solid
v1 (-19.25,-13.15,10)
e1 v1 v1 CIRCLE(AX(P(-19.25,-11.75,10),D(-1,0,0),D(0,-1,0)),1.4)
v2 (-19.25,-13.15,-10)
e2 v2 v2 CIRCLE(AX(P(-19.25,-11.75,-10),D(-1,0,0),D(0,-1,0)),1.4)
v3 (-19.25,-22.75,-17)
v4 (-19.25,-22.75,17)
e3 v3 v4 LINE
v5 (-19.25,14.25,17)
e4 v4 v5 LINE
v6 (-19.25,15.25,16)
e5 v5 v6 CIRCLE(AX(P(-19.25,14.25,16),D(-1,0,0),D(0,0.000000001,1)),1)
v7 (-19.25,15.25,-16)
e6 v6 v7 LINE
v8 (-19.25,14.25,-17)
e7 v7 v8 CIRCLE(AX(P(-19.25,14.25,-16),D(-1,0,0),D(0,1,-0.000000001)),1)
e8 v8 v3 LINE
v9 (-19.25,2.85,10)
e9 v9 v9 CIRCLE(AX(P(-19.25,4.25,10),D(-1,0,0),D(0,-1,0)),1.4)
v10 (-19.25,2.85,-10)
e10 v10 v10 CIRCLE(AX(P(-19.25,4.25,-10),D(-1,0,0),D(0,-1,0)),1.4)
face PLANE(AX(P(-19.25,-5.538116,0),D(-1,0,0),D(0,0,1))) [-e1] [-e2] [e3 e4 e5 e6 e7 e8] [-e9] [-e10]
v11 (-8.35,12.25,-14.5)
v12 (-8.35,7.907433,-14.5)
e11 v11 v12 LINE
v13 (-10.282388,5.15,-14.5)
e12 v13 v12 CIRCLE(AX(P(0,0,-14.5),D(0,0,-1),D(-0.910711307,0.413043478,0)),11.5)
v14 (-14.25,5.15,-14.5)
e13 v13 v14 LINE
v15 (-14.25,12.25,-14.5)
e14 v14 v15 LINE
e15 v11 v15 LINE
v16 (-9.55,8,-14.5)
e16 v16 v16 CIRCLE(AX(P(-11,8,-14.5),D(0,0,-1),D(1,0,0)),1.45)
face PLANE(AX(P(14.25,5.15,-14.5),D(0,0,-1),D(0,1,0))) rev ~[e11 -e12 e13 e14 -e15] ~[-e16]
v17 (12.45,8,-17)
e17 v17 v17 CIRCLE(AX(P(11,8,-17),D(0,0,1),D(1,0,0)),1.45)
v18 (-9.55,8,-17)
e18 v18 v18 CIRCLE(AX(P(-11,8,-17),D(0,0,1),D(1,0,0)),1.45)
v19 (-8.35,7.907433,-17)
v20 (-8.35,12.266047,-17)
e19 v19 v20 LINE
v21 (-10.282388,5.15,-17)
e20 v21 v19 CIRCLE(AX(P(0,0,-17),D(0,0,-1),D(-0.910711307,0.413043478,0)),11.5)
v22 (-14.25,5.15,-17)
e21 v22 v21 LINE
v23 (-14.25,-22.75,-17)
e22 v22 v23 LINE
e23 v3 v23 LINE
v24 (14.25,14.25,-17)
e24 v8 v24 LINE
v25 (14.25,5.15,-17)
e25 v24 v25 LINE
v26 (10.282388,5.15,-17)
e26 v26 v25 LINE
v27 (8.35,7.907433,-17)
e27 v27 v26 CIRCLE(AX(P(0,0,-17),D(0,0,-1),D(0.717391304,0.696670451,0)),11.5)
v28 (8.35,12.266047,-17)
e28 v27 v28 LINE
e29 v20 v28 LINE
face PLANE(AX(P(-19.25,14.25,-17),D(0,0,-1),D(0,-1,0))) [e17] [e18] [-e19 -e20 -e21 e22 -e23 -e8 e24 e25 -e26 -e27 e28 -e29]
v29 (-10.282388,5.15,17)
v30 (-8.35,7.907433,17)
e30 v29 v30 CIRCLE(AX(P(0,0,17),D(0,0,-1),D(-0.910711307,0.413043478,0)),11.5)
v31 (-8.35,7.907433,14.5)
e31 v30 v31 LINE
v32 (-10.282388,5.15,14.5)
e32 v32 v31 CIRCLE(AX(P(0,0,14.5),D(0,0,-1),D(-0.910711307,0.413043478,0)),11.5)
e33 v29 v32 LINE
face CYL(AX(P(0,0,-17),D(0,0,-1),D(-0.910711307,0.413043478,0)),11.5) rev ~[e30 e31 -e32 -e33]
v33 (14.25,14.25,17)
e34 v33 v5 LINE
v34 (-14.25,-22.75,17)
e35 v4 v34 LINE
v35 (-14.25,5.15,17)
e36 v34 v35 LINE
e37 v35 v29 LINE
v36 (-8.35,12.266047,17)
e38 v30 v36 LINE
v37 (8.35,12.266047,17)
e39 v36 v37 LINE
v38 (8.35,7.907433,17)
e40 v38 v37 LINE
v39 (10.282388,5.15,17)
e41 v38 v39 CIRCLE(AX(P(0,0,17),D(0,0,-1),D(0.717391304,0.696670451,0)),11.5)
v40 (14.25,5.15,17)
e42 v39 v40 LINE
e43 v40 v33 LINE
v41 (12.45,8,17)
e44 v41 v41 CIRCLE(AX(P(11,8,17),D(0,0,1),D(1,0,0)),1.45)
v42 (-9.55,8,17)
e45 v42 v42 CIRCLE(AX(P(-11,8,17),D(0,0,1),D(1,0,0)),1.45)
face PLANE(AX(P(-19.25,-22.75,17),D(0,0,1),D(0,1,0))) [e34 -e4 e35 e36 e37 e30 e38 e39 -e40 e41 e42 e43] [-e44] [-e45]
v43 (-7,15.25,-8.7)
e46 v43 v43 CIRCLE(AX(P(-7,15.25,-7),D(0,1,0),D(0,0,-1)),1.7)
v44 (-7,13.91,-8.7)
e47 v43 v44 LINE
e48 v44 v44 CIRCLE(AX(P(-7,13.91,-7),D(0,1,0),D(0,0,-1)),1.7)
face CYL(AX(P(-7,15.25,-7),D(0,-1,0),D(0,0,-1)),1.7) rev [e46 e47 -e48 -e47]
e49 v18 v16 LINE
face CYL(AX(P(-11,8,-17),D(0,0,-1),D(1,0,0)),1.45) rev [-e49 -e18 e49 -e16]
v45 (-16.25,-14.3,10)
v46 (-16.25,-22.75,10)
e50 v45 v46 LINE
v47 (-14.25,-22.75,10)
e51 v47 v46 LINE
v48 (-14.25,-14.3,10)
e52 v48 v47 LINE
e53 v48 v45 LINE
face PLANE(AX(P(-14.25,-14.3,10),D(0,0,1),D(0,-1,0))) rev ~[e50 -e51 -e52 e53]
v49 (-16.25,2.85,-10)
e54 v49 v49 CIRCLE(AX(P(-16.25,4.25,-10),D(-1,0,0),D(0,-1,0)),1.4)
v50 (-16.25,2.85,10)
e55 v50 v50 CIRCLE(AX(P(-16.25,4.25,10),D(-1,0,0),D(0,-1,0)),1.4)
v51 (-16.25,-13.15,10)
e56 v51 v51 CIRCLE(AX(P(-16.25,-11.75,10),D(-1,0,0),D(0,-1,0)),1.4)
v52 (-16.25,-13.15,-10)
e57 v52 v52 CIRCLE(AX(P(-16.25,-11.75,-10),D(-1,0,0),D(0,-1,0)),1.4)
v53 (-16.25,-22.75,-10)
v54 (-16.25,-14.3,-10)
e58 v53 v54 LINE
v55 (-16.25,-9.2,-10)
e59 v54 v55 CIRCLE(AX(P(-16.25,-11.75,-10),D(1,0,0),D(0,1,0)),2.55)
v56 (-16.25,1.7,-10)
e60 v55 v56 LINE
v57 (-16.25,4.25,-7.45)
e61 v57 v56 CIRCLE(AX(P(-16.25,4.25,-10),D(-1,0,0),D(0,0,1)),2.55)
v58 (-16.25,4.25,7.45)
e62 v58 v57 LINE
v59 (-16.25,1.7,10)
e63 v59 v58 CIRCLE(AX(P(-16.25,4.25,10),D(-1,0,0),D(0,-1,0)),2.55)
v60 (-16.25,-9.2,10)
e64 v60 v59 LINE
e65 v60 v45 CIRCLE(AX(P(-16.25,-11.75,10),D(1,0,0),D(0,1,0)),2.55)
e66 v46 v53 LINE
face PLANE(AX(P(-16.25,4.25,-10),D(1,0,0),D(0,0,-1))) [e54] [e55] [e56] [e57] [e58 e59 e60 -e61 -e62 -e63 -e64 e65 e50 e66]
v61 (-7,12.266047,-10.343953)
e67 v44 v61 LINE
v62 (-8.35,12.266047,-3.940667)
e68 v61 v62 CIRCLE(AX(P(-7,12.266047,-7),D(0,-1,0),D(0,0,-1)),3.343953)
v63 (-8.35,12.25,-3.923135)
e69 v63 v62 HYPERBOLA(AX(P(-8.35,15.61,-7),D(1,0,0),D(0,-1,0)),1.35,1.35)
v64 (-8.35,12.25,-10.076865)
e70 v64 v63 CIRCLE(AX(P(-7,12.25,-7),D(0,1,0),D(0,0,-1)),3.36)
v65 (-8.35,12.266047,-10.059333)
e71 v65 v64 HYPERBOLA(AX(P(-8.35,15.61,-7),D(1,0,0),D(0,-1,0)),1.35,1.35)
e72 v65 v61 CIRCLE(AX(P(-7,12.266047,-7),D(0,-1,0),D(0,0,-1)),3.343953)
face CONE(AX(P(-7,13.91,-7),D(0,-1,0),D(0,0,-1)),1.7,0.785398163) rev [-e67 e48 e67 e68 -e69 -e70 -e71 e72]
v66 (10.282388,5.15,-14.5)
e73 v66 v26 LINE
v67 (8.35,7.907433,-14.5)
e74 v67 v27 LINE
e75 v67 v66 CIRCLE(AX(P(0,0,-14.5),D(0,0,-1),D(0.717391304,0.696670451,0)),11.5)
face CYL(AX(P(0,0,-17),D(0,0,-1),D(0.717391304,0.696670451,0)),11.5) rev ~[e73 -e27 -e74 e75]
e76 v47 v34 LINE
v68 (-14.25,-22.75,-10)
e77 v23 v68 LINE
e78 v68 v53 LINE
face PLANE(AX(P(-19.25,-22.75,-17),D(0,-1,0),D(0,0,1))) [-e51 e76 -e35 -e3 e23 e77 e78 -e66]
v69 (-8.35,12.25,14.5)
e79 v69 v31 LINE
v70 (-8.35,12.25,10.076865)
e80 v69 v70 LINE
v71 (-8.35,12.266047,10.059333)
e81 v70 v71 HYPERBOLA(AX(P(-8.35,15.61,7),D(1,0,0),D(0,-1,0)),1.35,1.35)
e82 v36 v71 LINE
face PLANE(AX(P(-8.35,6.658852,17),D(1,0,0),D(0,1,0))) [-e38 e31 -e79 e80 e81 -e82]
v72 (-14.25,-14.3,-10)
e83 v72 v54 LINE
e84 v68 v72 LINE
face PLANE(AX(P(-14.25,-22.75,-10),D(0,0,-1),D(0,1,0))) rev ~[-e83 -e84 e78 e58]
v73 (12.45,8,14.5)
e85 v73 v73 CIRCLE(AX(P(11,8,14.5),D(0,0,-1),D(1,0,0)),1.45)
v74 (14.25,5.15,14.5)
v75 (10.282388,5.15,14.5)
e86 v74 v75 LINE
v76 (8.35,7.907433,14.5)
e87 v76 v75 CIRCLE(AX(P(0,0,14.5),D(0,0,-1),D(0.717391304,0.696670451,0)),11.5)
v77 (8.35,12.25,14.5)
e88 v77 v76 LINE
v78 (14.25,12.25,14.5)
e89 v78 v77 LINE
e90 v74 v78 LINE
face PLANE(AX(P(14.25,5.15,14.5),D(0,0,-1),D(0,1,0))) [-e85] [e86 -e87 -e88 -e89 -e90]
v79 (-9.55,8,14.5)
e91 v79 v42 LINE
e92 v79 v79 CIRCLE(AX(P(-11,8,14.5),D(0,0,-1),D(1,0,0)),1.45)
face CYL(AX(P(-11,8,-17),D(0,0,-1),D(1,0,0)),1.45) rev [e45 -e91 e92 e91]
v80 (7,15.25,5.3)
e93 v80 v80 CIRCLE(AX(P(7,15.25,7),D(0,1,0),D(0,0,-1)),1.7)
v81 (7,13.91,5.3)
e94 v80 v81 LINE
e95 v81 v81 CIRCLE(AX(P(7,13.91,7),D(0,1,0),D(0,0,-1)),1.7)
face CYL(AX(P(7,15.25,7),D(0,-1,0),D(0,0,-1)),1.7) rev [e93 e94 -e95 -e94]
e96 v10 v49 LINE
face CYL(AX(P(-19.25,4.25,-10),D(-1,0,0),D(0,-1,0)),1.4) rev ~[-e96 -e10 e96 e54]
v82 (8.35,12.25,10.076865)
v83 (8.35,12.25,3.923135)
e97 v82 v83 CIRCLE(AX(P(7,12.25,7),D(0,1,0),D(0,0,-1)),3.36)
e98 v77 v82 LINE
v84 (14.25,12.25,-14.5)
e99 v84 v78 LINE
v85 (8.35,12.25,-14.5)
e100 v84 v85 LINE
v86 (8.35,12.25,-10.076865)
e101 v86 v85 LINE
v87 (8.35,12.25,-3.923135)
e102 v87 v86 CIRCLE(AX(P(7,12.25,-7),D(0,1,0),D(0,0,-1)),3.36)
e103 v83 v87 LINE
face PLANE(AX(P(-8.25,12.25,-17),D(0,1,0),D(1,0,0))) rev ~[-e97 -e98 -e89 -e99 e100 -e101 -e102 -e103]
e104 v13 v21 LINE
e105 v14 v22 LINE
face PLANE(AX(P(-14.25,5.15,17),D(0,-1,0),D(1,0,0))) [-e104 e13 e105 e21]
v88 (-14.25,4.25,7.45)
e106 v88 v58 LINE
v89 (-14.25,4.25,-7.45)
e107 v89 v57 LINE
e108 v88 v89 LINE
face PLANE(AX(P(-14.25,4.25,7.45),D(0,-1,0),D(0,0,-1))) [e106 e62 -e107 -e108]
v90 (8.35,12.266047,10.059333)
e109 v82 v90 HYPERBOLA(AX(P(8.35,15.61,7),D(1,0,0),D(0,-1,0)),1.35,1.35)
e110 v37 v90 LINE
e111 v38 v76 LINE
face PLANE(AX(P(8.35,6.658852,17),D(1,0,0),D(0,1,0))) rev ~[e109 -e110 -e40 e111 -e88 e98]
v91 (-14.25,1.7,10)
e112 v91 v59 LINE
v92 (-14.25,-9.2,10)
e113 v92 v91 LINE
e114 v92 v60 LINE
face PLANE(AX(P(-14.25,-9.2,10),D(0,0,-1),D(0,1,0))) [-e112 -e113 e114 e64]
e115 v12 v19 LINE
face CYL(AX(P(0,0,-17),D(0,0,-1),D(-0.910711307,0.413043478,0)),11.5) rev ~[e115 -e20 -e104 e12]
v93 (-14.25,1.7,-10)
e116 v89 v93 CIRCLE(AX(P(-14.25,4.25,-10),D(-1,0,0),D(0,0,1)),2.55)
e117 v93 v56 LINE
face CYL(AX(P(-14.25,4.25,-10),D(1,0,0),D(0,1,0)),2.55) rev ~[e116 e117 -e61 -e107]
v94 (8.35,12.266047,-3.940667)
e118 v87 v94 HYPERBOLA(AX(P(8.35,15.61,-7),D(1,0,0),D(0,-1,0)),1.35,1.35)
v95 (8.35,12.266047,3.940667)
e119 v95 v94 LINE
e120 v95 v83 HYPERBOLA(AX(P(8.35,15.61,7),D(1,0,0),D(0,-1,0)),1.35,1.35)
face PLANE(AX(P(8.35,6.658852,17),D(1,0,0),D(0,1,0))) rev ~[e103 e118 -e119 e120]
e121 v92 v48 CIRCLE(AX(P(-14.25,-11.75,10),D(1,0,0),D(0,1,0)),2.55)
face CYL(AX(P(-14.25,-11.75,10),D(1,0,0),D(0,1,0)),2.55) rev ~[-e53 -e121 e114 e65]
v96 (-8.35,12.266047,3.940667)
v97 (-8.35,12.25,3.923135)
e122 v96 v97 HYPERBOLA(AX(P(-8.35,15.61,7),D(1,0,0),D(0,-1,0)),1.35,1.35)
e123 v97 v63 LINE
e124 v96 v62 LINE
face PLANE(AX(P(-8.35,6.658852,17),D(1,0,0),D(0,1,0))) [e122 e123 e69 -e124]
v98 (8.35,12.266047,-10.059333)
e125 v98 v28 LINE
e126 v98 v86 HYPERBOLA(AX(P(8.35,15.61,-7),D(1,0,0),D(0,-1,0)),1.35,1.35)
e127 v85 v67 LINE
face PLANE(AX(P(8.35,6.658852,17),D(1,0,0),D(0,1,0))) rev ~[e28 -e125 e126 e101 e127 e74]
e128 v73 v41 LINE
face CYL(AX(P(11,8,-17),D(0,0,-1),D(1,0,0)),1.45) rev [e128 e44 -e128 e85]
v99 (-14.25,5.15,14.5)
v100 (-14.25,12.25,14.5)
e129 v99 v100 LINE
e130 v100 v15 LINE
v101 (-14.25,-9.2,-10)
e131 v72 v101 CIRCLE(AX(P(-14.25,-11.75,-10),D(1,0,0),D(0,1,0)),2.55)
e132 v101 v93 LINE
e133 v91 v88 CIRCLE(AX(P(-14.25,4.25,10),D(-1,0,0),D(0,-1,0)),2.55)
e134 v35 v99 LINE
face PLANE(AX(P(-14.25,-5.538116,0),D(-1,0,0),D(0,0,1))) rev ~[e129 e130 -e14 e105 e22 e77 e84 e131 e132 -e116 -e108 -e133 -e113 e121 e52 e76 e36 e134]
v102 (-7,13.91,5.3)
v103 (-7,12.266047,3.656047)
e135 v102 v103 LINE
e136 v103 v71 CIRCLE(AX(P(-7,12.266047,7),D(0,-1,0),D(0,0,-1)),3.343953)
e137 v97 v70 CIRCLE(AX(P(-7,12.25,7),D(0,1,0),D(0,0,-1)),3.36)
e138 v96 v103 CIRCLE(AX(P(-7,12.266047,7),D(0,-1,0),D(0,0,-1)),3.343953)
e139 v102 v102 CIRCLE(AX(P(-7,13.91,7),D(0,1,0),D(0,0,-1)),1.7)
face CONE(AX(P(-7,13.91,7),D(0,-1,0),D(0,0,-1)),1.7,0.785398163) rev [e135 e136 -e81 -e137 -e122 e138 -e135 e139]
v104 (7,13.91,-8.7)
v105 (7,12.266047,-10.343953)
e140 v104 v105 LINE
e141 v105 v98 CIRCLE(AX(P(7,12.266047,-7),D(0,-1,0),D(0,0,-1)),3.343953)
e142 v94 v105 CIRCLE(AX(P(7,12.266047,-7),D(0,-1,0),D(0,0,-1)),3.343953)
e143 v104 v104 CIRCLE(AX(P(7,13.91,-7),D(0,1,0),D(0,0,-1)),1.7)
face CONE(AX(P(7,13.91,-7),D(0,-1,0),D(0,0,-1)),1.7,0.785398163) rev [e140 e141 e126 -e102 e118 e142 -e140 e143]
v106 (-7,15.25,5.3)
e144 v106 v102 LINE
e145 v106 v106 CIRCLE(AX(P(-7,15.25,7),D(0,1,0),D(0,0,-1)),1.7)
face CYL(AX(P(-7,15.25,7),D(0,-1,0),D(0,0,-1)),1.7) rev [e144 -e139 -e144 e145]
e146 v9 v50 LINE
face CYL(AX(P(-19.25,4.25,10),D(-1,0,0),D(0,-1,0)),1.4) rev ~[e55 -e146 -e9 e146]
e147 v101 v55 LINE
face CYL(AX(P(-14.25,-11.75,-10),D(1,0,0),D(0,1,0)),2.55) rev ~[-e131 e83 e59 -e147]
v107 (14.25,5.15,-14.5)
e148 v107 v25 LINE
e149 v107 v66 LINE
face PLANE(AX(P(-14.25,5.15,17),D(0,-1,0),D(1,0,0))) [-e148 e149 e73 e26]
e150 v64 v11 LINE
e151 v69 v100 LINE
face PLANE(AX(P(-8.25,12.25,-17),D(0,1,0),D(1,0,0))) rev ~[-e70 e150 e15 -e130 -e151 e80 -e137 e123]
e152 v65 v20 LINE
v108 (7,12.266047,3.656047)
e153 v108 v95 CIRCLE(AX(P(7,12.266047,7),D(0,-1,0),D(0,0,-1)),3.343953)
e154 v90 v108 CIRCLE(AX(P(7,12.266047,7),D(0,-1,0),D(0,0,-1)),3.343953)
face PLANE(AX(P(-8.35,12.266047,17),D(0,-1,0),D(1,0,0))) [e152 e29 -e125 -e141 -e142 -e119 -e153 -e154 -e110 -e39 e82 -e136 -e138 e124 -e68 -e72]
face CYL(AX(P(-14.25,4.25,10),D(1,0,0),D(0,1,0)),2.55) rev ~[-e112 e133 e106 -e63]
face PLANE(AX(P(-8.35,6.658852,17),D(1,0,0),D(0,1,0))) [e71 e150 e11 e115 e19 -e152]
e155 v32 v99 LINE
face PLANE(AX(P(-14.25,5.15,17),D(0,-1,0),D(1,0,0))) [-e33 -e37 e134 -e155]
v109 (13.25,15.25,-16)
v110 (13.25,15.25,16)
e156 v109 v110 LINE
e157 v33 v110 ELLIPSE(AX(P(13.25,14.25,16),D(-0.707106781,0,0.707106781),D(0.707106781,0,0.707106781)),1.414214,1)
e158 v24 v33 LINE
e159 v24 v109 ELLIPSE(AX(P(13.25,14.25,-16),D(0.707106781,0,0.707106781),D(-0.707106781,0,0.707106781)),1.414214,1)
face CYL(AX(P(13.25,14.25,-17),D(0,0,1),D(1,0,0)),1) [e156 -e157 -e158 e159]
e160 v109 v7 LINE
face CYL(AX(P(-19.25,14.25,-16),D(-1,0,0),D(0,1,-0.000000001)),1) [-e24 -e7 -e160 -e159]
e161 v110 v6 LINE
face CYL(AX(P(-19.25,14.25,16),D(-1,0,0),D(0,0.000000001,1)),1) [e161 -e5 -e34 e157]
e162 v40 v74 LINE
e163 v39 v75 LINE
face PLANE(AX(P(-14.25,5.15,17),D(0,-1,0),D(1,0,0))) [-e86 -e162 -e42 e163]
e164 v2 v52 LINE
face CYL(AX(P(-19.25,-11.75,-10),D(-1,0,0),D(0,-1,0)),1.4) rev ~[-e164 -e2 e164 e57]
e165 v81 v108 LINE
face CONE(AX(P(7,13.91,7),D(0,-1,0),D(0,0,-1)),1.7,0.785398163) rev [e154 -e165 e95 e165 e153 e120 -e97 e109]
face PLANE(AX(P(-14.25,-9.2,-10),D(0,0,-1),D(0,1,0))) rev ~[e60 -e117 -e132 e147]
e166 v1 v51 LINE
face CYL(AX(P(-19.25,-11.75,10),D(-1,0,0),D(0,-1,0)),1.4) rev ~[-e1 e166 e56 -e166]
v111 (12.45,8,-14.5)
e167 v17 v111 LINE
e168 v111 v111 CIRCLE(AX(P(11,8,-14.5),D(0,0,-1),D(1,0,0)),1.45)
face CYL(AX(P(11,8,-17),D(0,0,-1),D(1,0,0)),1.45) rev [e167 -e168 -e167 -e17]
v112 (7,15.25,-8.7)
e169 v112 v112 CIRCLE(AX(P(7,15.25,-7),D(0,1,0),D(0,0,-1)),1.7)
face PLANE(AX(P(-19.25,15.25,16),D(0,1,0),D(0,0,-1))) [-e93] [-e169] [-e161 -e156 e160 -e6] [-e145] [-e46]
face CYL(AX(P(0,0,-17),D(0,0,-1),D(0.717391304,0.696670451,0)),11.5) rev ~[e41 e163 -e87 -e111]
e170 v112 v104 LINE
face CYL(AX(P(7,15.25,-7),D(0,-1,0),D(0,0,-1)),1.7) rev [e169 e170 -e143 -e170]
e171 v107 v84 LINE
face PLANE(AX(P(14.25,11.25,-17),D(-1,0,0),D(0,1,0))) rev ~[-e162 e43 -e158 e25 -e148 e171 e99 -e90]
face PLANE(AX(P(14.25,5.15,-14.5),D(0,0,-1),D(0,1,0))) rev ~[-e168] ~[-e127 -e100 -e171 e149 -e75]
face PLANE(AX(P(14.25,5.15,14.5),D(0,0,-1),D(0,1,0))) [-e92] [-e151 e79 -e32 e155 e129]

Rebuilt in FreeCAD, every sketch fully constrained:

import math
import FreeCAD as App
import Part
import Sketcher

V = App.Vector
Q = App.Units.Quantity


def edges_at(feature, points):
    """Names of the edges that pass closest to the given points."""
    edges = feature.Shape.Edges
    near = lambda p: min(range(len(edges)), key=lambda i: edges[i].distToShape(Part.Vertex(*p))[0])
    return sorted({f"Edge{near(p) + 1}" for p in points})


def add_polygon(sketch, points):
    """Adds a closed chain of lines whose ends are joined by coincident constraints."""
    first, n = sketch.GeometryCount, len(points)
    for a, b in zip(points, points[1:] + points[:1]):
        sketch.addGeometry(Part.LineSegment(App.Vector(*a, 0), App.Vector(*b, 0)), False)
    for i in range(n):
        sketch.addConstraint(Sketcher.Constraint("Coincident", first + i, 2, first + (i + 1) % n, 1))

doc = App.newDocument("Part")
body = doc.addObject("PartDesign::Body", "Body")

sketch1 = doc.addObject("Sketcher::SketchObject", "Sketch")
body.addObject(sketch1)
sketch1.AttachmentSupport = (doc.XY_Plane, [""])
sketch1.MapMode = "FlatFace"
sketch1.addGeometry([
    Part.LineSegment(V(-14.2, 15.2, 0), V(-14.2, 4.8, 0)),
    Part.LineSegment(V(-14.2, 4.8, 0), V(-10.5, 4.8, 0)),
    Part.ArcOfCircle(Part.Circle(V(0, 0, 0), V(0, 0, 1), 11.5), math.radians(135.84), math.radians(155.6)),
    Part.LineSegment(V(-8.2, 8, 0), V(-8.2, 12.2, 0)),
    Part.LineSegment(V(-8.2, 12.2, 0), V(8.2, 12.2, 0)),
    Part.LineSegment(V(8.2, 12.2, 0), V(8.2, 8, 0)),
    Part.ArcOfCircle(Part.Circle(V(0, 0, 0), V(0, 0, 1), 11.5), math.radians(24.4), math.radians(44.16)),
    Part.LineSegment(V(10.5, 4.8, 0), V(14.2, 4.8, 0)),
    Part.LineSegment(V(14.2, 4.8, 0), V(14.2, 15.2, 0)),
    Part.LineSegment(V(14.2, 15.2, 0), V(-14.2, 15.2, 0)),
    Part.Circle(V(-11, 8, 0), V(0, 0, 1), 1.4),
    Part.Circle(V(11, 8, 0), V(0, 0, 1), 1.4),
], False)
sketch1.addConstraint([
    Sketcher.Constraint("Coincident", 0, 2, 1, 1),
    Sketcher.Constraint("Coincident", 1, 2, 2, 2),
    Sketcher.Constraint("Coincident", 2, 1, 3, 1),
    Sketcher.Constraint("Coincident", 3, 2, 4, 1),
    Sketcher.Constraint("Coincident", 4, 2, 5, 1),
    Sketcher.Constraint("Coincident", 5, 2, 6, 2),
    Sketcher.Constraint("Coincident", 6, 1, 7, 1),
    Sketcher.Constraint("Coincident", 7, 2, 8, 1),
    Sketcher.Constraint("Coincident", 8, 2, 9, 1),
    Sketcher.Constraint("Coincident", 9, 2, 0, 1),
    Sketcher.Constraint("Vertical", 0),
    Sketcher.Constraint("Horizontal", 1),
    Sketcher.Constraint("Vertical", 3),
    Sketcher.Constraint("Horizontal", 4),
    Sketcher.Constraint("Vertical", 5),
    Sketcher.Constraint("Horizontal", 7),
    Sketcher.Constraint("Vertical", 8),
    Sketcher.Constraint("Horizontal", 9),
    Sketcher.Constraint("Coincident", 2, 3, -1, 1),
    Sketcher.Constraint("Coincident", 6, 3, -1, 1),
    Sketcher.Constraint("Equal", 2, 6),
    Sketcher.Constraint("Equal", 10, 11),
    Sketcher.Constraint("Symmetric", 10, 3, 11, 3, -2),
    Sketcher.Constraint("Symmetric", 0, 2, 7, 2, -2),
    Sketcher.Constraint("Horizontal", 2, 1, 5, 2),
    Sketcher.Constraint("Diameter", 10, Q("2.9 mm")),
    Sketcher.Constraint("Radius", 2, Q("11.5 mm")),
    Sketcher.Constraint("DistanceX", 4, 1, 4, 2, Q("16.5 mm")),
    Sketcher.Constraint("DistanceX", 9, 2, 9, 1, Q("28.5 mm")),
    Sketcher.Constraint("DistanceY", 0, 2, 0, 1, Q("10.5 mm")),
    Sketcher.Constraint("DistanceX", 10, 3, -1, 1, Q("11 mm")),
    Sketcher.Constraint("DistanceY", -1, 1, 10, 3, Q("8 mm")),
    Sketcher.Constraint("DistanceY", 4, 2, 8, 2, Q("3 mm")),
    Sketcher.Constraint("DistanceY", -1, 1, 0, 2, Q("4.75 mm")),
])
pad1 = doc.addObject("PartDesign::Pad", "Pad")
body.addObject(pad1)
pad1.Profile = sketch1
pad1.Type = "TwoLengths"
pad1.Length = 17
pad1.Length2 = 17

sketch2 = doc.addObject("Sketcher::SketchObject", "Sketch001")
body.addObject(sketch2)
sketch2.AttachmentSupport = (doc.YZ_Plane, [""])
sketch2.MapMode = "FlatFace"
sketch2.AttachmentOffset = App.Placement(V(0, 0, -14.25), App.Rotation())
add_polygon(sketch2, [(12, -14), (5, -14), (5, 14), (12, 14)])
sketch2.addConstraint([
    Sketcher.Constraint("Horizontal", 0),
    Sketcher.Constraint("Vertical", 1),
    Sketcher.Constraint("Horizontal", 2),
    Sketcher.Constraint("Vertical", 3),
    Sketcher.Constraint("DistanceX", 0, 2, 0, 1, Q("7.5 mm")),
    Sketcher.Constraint("DistanceY", 1, 1, 1, 2, Q("28.4 mm")),
    Sketcher.Constraint("DistanceY", 0, 2, -1, 1, Q("14.2 mm")),
    Sketcher.Constraint("DistanceX", -1, 1, 0, 2, Q("4.75 mm")),
])
pocket1 = doc.addObject("PartDesign::Pocket", "Pocket")
body.addObject(pocket1)
pocket1.Profile = sketch2
pocket1.Type = "ThroughAll"
pocket1.Reversed = True

sketch3 = doc.addObject("Sketcher::SketchObject", "Sketch002")
body.addObject(sketch3)
sketch3.AttachmentSupport = (doc.XZ_Plane, [""])
sketch3.MapMode = "FlatFace"
sketch3.AttachmentOffset = App.Placement(V(0, 0, -15.25), App.Rotation())
sketch3.addGeometry(Part.Circle(V(0, 0, 0), V(0, 0, 1), 5), False)
sketch3.addConstraint([
    Sketcher.Constraint("Coincident", 0, 3, -1, 1),
    Sketcher.Constraint("Diameter", 0, Q("10 mm")),
])
pocket2 = doc.addObject("PartDesign::Pocket", "Pocket001")
body.addObject(pocket2)
pocket2.Profile = sketch3
pocket2.Type = "ThroughAll"
pocket2.Reversed = True

sketch4 = doc.addObject("Sketcher::SketchObject", "Sketch003")
body.addObject(sketch4)
sketch4.AttachmentSupport = (doc.YZ_Plane, [""])
sketch4.MapMode = "FlatFace"
sketch4.AttachmentOffset = App.Placement(V(0, 0, -8.25), App.Rotation())
add_polygon(sketch4, [(15.2, 9), (12.2, 9), (12.2, 5.6), (13.9, 7.3), (15.2, 7.3)])
sketch4.addGeometry(Part.LineSegment(V(12.2, 9, 0), V(15.2, 9, 0)), True)
sketch4.addConstraint([
    Sketcher.Constraint("Horizontal", 0),
    Sketcher.Constraint("Vertical", 1),
    Sketcher.Constraint("Horizontal", 3),
    Sketcher.Constraint("Vertical", 4),
    Sketcher.Constraint("Horizontal", 5),
    Sketcher.Constraint("Coincident", 5, 1, 0, 2),
    Sketcher.Constraint("Vertical", 3, 2, 5, 2),
    Sketcher.Constraint("DistanceX", 0, 2, 0, 1, Q("3 mm")),
    Sketcher.Constraint("Angle", 2, Q("45 deg")),
    Sketcher.Constraint("DistanceY", 4, 1, 4, 2, Q("1.7 mm")),
    Sketcher.Constraint("DistanceY", -1, 1, 0, 2, Q("9 mm")),
    Sketcher.Constraint("DistanceX", 3, 1, 3, 2, Q("1.34 mm")),
    Sketcher.Constraint("DistanceX", -1, 1, 0, 2, Q("12.25 mm")),
])
groove = doc.addObject("PartDesign::Groove", "Groove")
body.addObject(groove)
groove.Profile = sketch4
groove.ReferenceAxis = (sketch4, ["Axis0"])
groove.Angle = 360
doc.recompute()

linearpattern = doc.addObject("PartDesign::LinearPattern", "LinearPattern")
body.addObject(linearpattern)
linearpattern.Originals = [groove]
linearpattern.Direction = (doc.X_Axis, [""])
linearpattern.Mode = "offset"
linearpattern.Offset = 16.5
linearpattern.Occurrences = 2
body.Tip = linearpattern
doc.recompute()

linearpattern2 = doc.addObject("PartDesign::LinearPattern", "LinearPattern001")
body.addObject(linearpattern2)
linearpattern2.Originals = [groove]
linearpattern2.Direction = (doc.Z_Axis, [""])
linearpattern2.Mode = "offset"
linearpattern2.Offset = 18
linearpattern2.Occurrences = 2
linearpattern2.Reversed = True
body.Tip = linearpattern2
doc.recompute()

datumline = doc.addObject("PartDesign::Line", "DatumLine")
body.addObject(datumline)
datumline.Placement = App.Placement(V(0, 0, 0), App.Rotation(V(0, 0, 1), V(0.675724629, 0, -0.73715414)))
linearpattern3 = doc.addObject("PartDesign::LinearPattern", "LinearPattern002")
body.addObject(linearpattern3)
linearpattern3.Originals = [groove]
linearpattern3.Direction = (datumline, [""])
linearpattern3.Mode = "offset"
linearpattern3.Offset = 24.418231
linearpattern3.Occurrences = 2
body.Tip = linearpattern3
doc.recompute()

fillet = doc.addObject("PartDesign::Fillet", "Fillet")
body.addObject(fillet)
fillet.Base = (linearpattern3, edges_at(linearpattern3, [(14.25, 15.25, 0), (0, 15.25, -17), (0, 15.25, 17)]))
fillet.Radius = 1

sketch5 = doc.addObject("Sketcher::SketchObject", "Sketch004")
body.addObject(sketch5)
sketch5.AttachmentSupport = (doc.XY_Plane, [""])
sketch5.MapMode = "FlatFace"
sketch5.AttachmentOffset = App.Placement(V(0, 0, 17), App.Rotation())
add_polygon(sketch5, [(-14.25, 5.15), (-14.25, 4.75), (14.25, 4.75), (14.25, 5.15)])
sketch5.addConstraint([
    Sketcher.Constraint("Vertical", 0),
    Sketcher.Constraint("Horizontal", 1),
    Sketcher.Constraint("Vertical", 2),
    Sketcher.Constraint("Horizontal", 3),
    Sketcher.Constraint("DistanceX", 1, 1, 1, 2, Q("28.5 mm")),
    Sketcher.Constraint("DistanceY", 0, 2, 0, 1, Q("0.4 mm")),
    Sketcher.Constraint("DistanceX", 0, 2, -1, 1, Q("14.25 mm")),
    Sketcher.Constraint("DistanceY", -1, 1, 0, 2, Q("4.75 mm")),
])
pocket3 = doc.addObject("PartDesign::Pocket", "Pocket002")
body.addObject(pocket3)
pocket3.Profile = sketch5
pocket3.Type = "ThroughAll"

sketch6 = doc.addObject("Sketcher::SketchObject", "Sketch005")
body.addObject(sketch6)
sketch6.AttachmentSupport = (doc.YZ_Plane, [""])
sketch6.MapMode = "FlatFace"
sketch6.AttachmentOffset = App.Placement(V(0, 0, -19.25), App.Rotation())
sketch6.addGeometry([
    Part.LineSegment(V(-22.8, 17, 0), V(14.2, 17, 0)),
    Part.ArcOfCircle(Part.Circle(V(14.2, 16, 0), V(0, 0, 1), 1), math.radians(0), math.radians(90)),
    Part.LineSegment(V(15.2, 16, 0), V(15.2, -16, 0)),
    Part.ArcOfCircle(Part.Circle(V(14.2, -16, 0), V(0, 0, 1), 1), math.radians(-90), math.radians(0)),
    Part.LineSegment(V(14.2, -17, 0), V(-22.8, -17, 0)),
    Part.LineSegment(V(-22.8, -17, 0), V(-22.8, 17, 0)),
], False)
sketch6.addConstraint([
    Sketcher.Constraint("Tangent", 0, 2, 1, 2),
    Sketcher.Constraint("Tangent", 1, 1, 2, 1),
    Sketcher.Constraint("Tangent", 2, 2, 3, 2),
    Sketcher.Constraint("Tangent", 3, 1, 4, 1),
    Sketcher.Constraint("Coincident", 4, 2, 5, 1),
    Sketcher.Constraint("Coincident", 5, 2, 0, 1),
    Sketcher.Constraint("Horizontal", 0),
    Sketcher.Constraint("Vertical", 2),
    Sketcher.Constraint("Horizontal", 4),
    Sketcher.Constraint("Vertical", 5),
    Sketcher.Constraint("Equal", 1, 3),
    Sketcher.Constraint("Radius", 1, Q("1 mm")),
    Sketcher.Constraint("DistanceX", 0, 1, 0, 2, Q("37 mm")),
    Sketcher.Constraint("DistanceY", 2, 2, 2, 1, Q("32 mm")),
    Sketcher.Constraint("DistanceY", -1, 1, 1, 3, Q("16 mm")),
    Sketcher.Constraint("DistanceX", -1, 1, 1, 3, Q("14.25 mm")),
])
pad2 = doc.addObject("PartDesign::Pad", "Pad001")
body.addObject(pad2)
pad2.Profile = sketch6
pad2.Length = 5

sketch7 = doc.addObject("Sketcher::SketchObject", "Sketch006")
body.addObject(sketch7)
sketch7.AttachmentSupport = (doc.YZ_Plane, [""])
sketch7.MapMode = "FlatFace"
sketch7.AttachmentOffset = App.Placement(V(0, 0, -19.25), App.Rotation())
sketch7.addGeometry([
    Part.Circle(V(-11.8, -10, 0), V(0, 0, 1), 1.4),
    Part.Circle(V(-11.8, 10, 0), V(0, 0, 1), 1.4),
    Part.Circle(V(4.2, 10, 0), V(0, 0, 1), 1.4),
    Part.Circle(V(4.2, -10, 0), V(0, 0, 1), 1.4),
], False)
sketch7.addConstraint([
    Sketcher.Constraint("Equal", 0, 1),
    Sketcher.Constraint("Equal", 1, 2),
    Sketcher.Constraint("Equal", 2, 3),
    Sketcher.Constraint("Symmetric", 0, 3, 1, 3, -1),
    Sketcher.Constraint("Symmetric", 2, 3, 3, 3, -1),
    Sketcher.Constraint("Horizontal", 1, 3, 2, 3),
    Sketcher.Constraint("Diameter", 0, Q("2.8 mm")),
    Sketcher.Constraint("DistanceY", 0, 3, -1, 1, Q("10 mm")),
    Sketcher.Constraint("DistanceX", 1, 3, 2, 3, Q("16 mm")),
    Sketcher.Constraint("DistanceX", 0, 3, -1, 1, Q("11.75 mm")),
])
pocket4 = doc.addObject("PartDesign::Pocket", "Pocket003")
body.addObject(pocket4)
pocket4.Profile = sketch7
pocket4.Length = 5
pocket4.Reversed = True

sketch8 = doc.addObject("Sketcher::SketchObject", "Sketch007")
body.addObject(sketch8)
sketch8.AttachmentSupport = (doc.YZ_Plane, [""])
sketch8.MapMode = "FlatFace"
sketch8.AttachmentOffset = App.Placement(V(0, 0, -14.25), App.Rotation())
sketch8.addGeometry([
    Part.Circle(V(-11.8, 10, 0), V(0, 0, 1), 2.5),
    Part.Circle(V(-11.8, -10, 0), V(0, 0, 1), 2.5),
    Part.Circle(V(4.2, -10, 0), V(0, 0, 1), 2.5),
    Part.Circle(V(4.2, 10, 0), V(0, 0, 1), 2.5),
], False)
sketch8.addConstraint([
    Sketcher.Constraint("Equal", 0, 1),
    Sketcher.Constraint("Equal", 1, 2),
    Sketcher.Constraint("Equal", 2, 3),
    Sketcher.Constraint("Symmetric", 0, 3, 1, 3, -1),
    Sketcher.Constraint("Symmetric", 2, 3, 3, 3, -1),
    Sketcher.Constraint("Horizontal", 1, 3, 2, 3),
    Sketcher.Constraint("Diameter", 0, Q("5.1 mm")),
    Sketcher.Constraint("DistanceY", -1, 1, 0, 3, Q("10 mm")),
    Sketcher.Constraint("DistanceX", 1, 3, 2, 3, Q("16 mm")),
    Sketcher.Constraint("DistanceX", 0, 3, -1, 1, Q("11.75 mm")),
])
pocket5 = doc.addObject("PartDesign::Pocket", "Pocket004")
body.addObject(pocket5)
pocket5.Profile = sketch8
pocket5.Length = 2

sketch9 = doc.addObject("Sketcher::SketchObject", "Sketch008")
body.addObject(sketch9)
sketch9.AttachmentSupport = (doc.XZ_Plane, [""])
sketch9.MapMode = "FlatFace"
sketch9.AttachmentOffset = App.Placement(V(0, 0, -15.25), App.Rotation())
add_polygon(sketch9, [(-12, -15), (-12, 15), (12, 15), (12, -15)])
sketch9.addConstraint([
    Sketcher.Constraint("Vertical", 0),
    Sketcher.Constraint("Horizontal", 1),
    Sketcher.Constraint("Vertical", 2),
    Sketcher.Constraint("Horizontal", 3),
    Sketcher.Constraint("Symmetric", 0, 2, 2, 2, -1, 1),
    Sketcher.Constraint("DistanceX", 1, 1, 1, 2, Q("24.851878 mm")),
    Sketcher.Constraint("DistanceY", 0, 1, 0, 2, Q("29.949434 mm")),
])
pad3 = doc.addObject("PartDesign::Pad", "Pad002")
body.addObject(pad3)
pad3.Profile = sketch9
pad3.Length = 3

sketch10 = doc.addObject("Sketcher::SketchObject", "Sketch009")
body.addObject(sketch10)
sketch10.AttachmentSupport = (doc.YZ_Plane, [""])
sketch10.MapMode = "FlatFace"
sketch10.AttachmentOffset = App.Placement(V(0, 0, -7), App.Rotation())
add_polygon(sketch10, [(15.2, 7), (12.2, 7), (12.2, 3.6), (13.9, 5.3), (15.2, 5.3)])
sketch10.addGeometry(Part.LineSegment(V(12.2, 7, 0), V(15.2, 7, 0)), True)
sketch10.addConstraint([
    Sketcher.Constraint("Horizontal", 0),
    Sketcher.Constraint("Vertical", 1),
    Sketcher.Constraint("Horizontal", 3),
    Sketcher.Constraint("Vertical", 4),
    Sketcher.Constraint("Horizontal", 5),
    Sketcher.Constraint("Coincident", 5, 1, 0, 2),
    Sketcher.Constraint("Vertical", 3, 2, 5, 2),
    Sketcher.Constraint("DistanceX", 0, 2, 0, 1, Q("3 mm")),
    Sketcher.Constraint("Angle", 2, Q("45 deg")),
    Sketcher.Constraint("DistanceY", 4, 1, 4, 2, Q("1.7 mm")),
    Sketcher.Constraint("DistanceY", -1, 1, 0, 2, Q("7 mm")),
    Sketcher.Constraint("DistanceX", 3, 1, 3, 2, Q("1.34 mm")),
    Sketcher.Constraint("DistanceX", -1, 1, 0, 2, Q("12.25 mm")),
])
groove2 = doc.addObject("PartDesign::Groove", "Groove001")
body.addObject(groove2)
groove2.Profile = sketch10
groove2.ReferenceAxis = (sketch10, ["Axis0"])
groove2.Angle = 360
doc.recompute()

linearpattern4 = doc.addObject("PartDesign::LinearPattern", "LinearPattern003")
body.addObject(linearpattern4)
linearpattern4.Originals = [groove2]
linearpattern4.Direction = (doc.Z_Axis, [""])
linearpattern4.Mode = "offset"
linearpattern4.Offset = 14
linearpattern4.Occurrences = 2
linearpattern4.Reversed = True
body.Tip = linearpattern4
doc.recompute()

datumline2 = doc.addObject("PartDesign::Line", "DatumLine001")
body.addObject(datumline2)
datumline2.Placement = App.Placement(V(0, 0, 0), App.Rotation(V(0, 0, 1), V(0.707106781, 0, -0.707106781)))
linearpattern5 = doc.addObject("PartDesign::LinearPattern", "LinearPattern004")
body.addObject(linearpattern5)
linearpattern5.Originals = [groove2]
linearpattern5.Direction = (datumline2, [""])
linearpattern5.Mode = "offset"
linearpattern5.Offset = 19.79899
linearpattern5.Occurrences = 2
body.Tip = linearpattern5
doc.recompute()

linearpattern6 = doc.addObject("PartDesign::LinearPattern", "LinearPattern005")
body.addObject(linearpattern6)
linearpattern6.Originals = [groove2]
linearpattern6.Direction = (doc.X_Axis, [""])
linearpattern6.Mode = "offset"
linearpattern6.Offset = 14
linearpattern6.Occurrences = 2
body.Tip = linearpattern6

sketch11 = doc.addObject("Sketcher::SketchObject", "Sketch010")
body.addObject(sketch11)
sketch11.AttachmentSupport = (doc.YZ_Plane, [""])
sketch11.MapMode = "FlatFace"
sketch11.AttachmentOffset = App.Placement(V(0, 0, -14.25), App.Rotation())
sketch11.addGeometry([
    Part.LineSegment(V(1.7, 10, 0), V(-9.2, 10, 0)),
    Part.ArcOfCircle(Part.Circle(V(-11.8, 10, 0), V(0, 0, 1), 2.5), math.radians(0), math.radians(180)),
    Part.LineSegment(V(-14.3, 10, 0), V(-22.8, 10, 0)),
    Part.LineSegment(V(-22.8, 10, 0), V(-22.8, -10, 0)),
    Part.LineSegment(V(-22.8, -10, 0), V(-14.3, -10, 0)),
    Part.ArcOfCircle(Part.Circle(V(-11.8, -10, 0), V(0, 0, 1), 2.5), math.radians(180), math.radians(360)),
    Part.LineSegment(V(-9.2, -10, 0), V(1.7, -10, 0)),
    Part.ArcOfCircle(Part.Circle(V(4.2, -10, 0), V(0, 0, 1), 2.5), math.radians(180), math.radians(450)),
    Part.LineSegment(V(4.2, -7.5, 0), V(4.2, 7.5, 0)),
    Part.ArcOfCircle(Part.Circle(V(4.2, 10, 0), V(0, 0, 1), 2.5), math.radians(-90), math.radians(180)),
], False)
sketch11.addConstraint([
    Sketcher.Constraint("Coincident", 0, 2, 1, 1),
    Sketcher.Constraint("Coincident", 1, 2, 2, 1),
    Sketcher.Constraint("Coincident", 2, 2, 3, 1),
    Sketcher.Constraint("Coincident", 3, 2, 4, 1),
    Sketcher.Constraint("Coincident", 4, 2, 5, 1),
    Sketcher.Constraint("Coincident", 5, 2, 6, 1),
    Sketcher.Constraint("Coincident", 6, 2, 7, 1),
    Sketcher.Constraint("Coincident", 7, 2, 8, 1),
    Sketcher.Constraint("Coincident", 8, 2, 9, 1),
    Sketcher.Constraint("Coincident", 9, 2, 0, 1),
    Sketcher.Constraint("Horizontal", 0),
    Sketcher.Constraint("Horizontal", 2),
    Sketcher.Constraint("Vertical", 3),
    Sketcher.Constraint("Horizontal", 4),
    Sketcher.Constraint("Horizontal", 6),
    Sketcher.Constraint("Vertical", 8),
    Sketcher.Constraint("Equal", 1, 5),
    Sketcher.Constraint("Equal", 5, 7),
    Sketcher.Constraint("Equal", 7, 9),
    Sketcher.Constraint("Symmetric", 1, 3, 5, 3, -1),
    Sketcher.Constraint("Symmetric", 7, 3, 9, 3, -1),
    Sketcher.Constraint("Horizontal", 5, 3, 7, 3),
    Sketcher.Constraint("Horizontal", 9, 3, 0, 2),
    Sketcher.Constraint("Horizontal", 0, 2, 1, 2),
    Sketcher.Constraint("Horizontal", 7, 3, 3, 2),
    Sketcher.Constraint("Horizontal", 4, 2, 5, 2),
    Sketcher.Constraint("Vertical", 9, 3, 7, 2),
    Sketcher.Constraint("DistanceY", 3, 2, 3, 1, Q("20 mm")),
    Sketcher.Constraint("Radius", 1, Q("2.55 mm")),
    Sketcher.Constraint("DistanceX", 0, 2, 0, 1, Q("10.9 mm")),
    Sketcher.Constraint("DistanceX", 2, 2, 1, 3, Q("11 mm")),
    Sketcher.Constraint("DistanceX", 0, 2, -1, 1, Q("9.2 mm")),
])
pocket6 = doc.addObject("PartDesign::Pocket", "Pocket005")
body.addObject(pocket6)
pocket6.Profile = sketch11
pocket6.Length = 2

sketch12 = doc.addObject("Sketcher::SketchObject", "Sketch011")
body.addObject(sketch12)
sketch12.AttachmentSupport = (doc.YZ_Plane, [""])
sketch12.MapMode = "FlatFace"
sketch12.AttachmentOffset = App.Placement(V(0, 0, 14.25), App.Rotation())
add_polygon(sketch12, [(12, 14), (5, 14), (5, -14), (12, -14)])
sketch12.addConstraint([
    Sketcher.Constraint("Horizontal", 0),
    Sketcher.Constraint("Vertical", 1),
    Sketcher.Constraint("Horizontal", 2),
    Sketcher.Constraint("Vertical", 3),
    Sketcher.Constraint("DistanceY", 1, 2, 1, 1, Q("29 mm")),
    Sketcher.Constraint("DistanceX", 0, 2, 0, 1, Q("7.1 mm")),
    Sketcher.Constraint("DistanceY", -1, 1, 0, 2, Q("14.5 mm")),
    Sketcher.Constraint("DistanceX", -1, 1, 0, 2, Q("5.15 mm")),
])
pocket7 = doc.addObject("PartDesign::Pocket", "Pocket006")
body.addObject(pocket7)
pocket7.Profile = sketch12
pocket7.Length = 28.5

sketch13 = doc.addObject("Sketcher::SketchObject", "Sketch012")
body.addObject(sketch13)
sketch13.AttachmentSupport = (doc.XY_Plane, [""])
sketch13.MapMode = "FlatFace"
sketch13.AttachmentOffset = App.Placement(V(0, 0, 17), App.Rotation())
add_polygon(sketch13, [(-8, 12), (-8, 7), (8, 7), (8, 12)])
sketch13.addConstraint([
    Sketcher.Constraint("Vertical", 0),
    Sketcher.Constraint("Horizontal", 1),
    Sketcher.Constraint("Vertical", 2),
    Sketcher.Constraint("Horizontal", 3),
    Sketcher.Constraint("DistanceX", 1, 1, 1, 2, Q("16.7 mm")),
    Sketcher.Constraint("DistanceX", 0, 2, -1, 1, Q("8.35 mm")),
    Sketcher.Constraint("DistanceY", 0, 2, 0, 1, Q("5.607196 mm")),
    Sketcher.Constraint("DistanceY", -1, 1, 0, 2, Q("6.658852 mm")),
])
pocket8 = doc.addObject("PartDesign::Pocket", "Pocket007")
body.addObject(pocket8)
pocket8.Profile = sketch13
pocket8.Length = 34

doc.recompute()
